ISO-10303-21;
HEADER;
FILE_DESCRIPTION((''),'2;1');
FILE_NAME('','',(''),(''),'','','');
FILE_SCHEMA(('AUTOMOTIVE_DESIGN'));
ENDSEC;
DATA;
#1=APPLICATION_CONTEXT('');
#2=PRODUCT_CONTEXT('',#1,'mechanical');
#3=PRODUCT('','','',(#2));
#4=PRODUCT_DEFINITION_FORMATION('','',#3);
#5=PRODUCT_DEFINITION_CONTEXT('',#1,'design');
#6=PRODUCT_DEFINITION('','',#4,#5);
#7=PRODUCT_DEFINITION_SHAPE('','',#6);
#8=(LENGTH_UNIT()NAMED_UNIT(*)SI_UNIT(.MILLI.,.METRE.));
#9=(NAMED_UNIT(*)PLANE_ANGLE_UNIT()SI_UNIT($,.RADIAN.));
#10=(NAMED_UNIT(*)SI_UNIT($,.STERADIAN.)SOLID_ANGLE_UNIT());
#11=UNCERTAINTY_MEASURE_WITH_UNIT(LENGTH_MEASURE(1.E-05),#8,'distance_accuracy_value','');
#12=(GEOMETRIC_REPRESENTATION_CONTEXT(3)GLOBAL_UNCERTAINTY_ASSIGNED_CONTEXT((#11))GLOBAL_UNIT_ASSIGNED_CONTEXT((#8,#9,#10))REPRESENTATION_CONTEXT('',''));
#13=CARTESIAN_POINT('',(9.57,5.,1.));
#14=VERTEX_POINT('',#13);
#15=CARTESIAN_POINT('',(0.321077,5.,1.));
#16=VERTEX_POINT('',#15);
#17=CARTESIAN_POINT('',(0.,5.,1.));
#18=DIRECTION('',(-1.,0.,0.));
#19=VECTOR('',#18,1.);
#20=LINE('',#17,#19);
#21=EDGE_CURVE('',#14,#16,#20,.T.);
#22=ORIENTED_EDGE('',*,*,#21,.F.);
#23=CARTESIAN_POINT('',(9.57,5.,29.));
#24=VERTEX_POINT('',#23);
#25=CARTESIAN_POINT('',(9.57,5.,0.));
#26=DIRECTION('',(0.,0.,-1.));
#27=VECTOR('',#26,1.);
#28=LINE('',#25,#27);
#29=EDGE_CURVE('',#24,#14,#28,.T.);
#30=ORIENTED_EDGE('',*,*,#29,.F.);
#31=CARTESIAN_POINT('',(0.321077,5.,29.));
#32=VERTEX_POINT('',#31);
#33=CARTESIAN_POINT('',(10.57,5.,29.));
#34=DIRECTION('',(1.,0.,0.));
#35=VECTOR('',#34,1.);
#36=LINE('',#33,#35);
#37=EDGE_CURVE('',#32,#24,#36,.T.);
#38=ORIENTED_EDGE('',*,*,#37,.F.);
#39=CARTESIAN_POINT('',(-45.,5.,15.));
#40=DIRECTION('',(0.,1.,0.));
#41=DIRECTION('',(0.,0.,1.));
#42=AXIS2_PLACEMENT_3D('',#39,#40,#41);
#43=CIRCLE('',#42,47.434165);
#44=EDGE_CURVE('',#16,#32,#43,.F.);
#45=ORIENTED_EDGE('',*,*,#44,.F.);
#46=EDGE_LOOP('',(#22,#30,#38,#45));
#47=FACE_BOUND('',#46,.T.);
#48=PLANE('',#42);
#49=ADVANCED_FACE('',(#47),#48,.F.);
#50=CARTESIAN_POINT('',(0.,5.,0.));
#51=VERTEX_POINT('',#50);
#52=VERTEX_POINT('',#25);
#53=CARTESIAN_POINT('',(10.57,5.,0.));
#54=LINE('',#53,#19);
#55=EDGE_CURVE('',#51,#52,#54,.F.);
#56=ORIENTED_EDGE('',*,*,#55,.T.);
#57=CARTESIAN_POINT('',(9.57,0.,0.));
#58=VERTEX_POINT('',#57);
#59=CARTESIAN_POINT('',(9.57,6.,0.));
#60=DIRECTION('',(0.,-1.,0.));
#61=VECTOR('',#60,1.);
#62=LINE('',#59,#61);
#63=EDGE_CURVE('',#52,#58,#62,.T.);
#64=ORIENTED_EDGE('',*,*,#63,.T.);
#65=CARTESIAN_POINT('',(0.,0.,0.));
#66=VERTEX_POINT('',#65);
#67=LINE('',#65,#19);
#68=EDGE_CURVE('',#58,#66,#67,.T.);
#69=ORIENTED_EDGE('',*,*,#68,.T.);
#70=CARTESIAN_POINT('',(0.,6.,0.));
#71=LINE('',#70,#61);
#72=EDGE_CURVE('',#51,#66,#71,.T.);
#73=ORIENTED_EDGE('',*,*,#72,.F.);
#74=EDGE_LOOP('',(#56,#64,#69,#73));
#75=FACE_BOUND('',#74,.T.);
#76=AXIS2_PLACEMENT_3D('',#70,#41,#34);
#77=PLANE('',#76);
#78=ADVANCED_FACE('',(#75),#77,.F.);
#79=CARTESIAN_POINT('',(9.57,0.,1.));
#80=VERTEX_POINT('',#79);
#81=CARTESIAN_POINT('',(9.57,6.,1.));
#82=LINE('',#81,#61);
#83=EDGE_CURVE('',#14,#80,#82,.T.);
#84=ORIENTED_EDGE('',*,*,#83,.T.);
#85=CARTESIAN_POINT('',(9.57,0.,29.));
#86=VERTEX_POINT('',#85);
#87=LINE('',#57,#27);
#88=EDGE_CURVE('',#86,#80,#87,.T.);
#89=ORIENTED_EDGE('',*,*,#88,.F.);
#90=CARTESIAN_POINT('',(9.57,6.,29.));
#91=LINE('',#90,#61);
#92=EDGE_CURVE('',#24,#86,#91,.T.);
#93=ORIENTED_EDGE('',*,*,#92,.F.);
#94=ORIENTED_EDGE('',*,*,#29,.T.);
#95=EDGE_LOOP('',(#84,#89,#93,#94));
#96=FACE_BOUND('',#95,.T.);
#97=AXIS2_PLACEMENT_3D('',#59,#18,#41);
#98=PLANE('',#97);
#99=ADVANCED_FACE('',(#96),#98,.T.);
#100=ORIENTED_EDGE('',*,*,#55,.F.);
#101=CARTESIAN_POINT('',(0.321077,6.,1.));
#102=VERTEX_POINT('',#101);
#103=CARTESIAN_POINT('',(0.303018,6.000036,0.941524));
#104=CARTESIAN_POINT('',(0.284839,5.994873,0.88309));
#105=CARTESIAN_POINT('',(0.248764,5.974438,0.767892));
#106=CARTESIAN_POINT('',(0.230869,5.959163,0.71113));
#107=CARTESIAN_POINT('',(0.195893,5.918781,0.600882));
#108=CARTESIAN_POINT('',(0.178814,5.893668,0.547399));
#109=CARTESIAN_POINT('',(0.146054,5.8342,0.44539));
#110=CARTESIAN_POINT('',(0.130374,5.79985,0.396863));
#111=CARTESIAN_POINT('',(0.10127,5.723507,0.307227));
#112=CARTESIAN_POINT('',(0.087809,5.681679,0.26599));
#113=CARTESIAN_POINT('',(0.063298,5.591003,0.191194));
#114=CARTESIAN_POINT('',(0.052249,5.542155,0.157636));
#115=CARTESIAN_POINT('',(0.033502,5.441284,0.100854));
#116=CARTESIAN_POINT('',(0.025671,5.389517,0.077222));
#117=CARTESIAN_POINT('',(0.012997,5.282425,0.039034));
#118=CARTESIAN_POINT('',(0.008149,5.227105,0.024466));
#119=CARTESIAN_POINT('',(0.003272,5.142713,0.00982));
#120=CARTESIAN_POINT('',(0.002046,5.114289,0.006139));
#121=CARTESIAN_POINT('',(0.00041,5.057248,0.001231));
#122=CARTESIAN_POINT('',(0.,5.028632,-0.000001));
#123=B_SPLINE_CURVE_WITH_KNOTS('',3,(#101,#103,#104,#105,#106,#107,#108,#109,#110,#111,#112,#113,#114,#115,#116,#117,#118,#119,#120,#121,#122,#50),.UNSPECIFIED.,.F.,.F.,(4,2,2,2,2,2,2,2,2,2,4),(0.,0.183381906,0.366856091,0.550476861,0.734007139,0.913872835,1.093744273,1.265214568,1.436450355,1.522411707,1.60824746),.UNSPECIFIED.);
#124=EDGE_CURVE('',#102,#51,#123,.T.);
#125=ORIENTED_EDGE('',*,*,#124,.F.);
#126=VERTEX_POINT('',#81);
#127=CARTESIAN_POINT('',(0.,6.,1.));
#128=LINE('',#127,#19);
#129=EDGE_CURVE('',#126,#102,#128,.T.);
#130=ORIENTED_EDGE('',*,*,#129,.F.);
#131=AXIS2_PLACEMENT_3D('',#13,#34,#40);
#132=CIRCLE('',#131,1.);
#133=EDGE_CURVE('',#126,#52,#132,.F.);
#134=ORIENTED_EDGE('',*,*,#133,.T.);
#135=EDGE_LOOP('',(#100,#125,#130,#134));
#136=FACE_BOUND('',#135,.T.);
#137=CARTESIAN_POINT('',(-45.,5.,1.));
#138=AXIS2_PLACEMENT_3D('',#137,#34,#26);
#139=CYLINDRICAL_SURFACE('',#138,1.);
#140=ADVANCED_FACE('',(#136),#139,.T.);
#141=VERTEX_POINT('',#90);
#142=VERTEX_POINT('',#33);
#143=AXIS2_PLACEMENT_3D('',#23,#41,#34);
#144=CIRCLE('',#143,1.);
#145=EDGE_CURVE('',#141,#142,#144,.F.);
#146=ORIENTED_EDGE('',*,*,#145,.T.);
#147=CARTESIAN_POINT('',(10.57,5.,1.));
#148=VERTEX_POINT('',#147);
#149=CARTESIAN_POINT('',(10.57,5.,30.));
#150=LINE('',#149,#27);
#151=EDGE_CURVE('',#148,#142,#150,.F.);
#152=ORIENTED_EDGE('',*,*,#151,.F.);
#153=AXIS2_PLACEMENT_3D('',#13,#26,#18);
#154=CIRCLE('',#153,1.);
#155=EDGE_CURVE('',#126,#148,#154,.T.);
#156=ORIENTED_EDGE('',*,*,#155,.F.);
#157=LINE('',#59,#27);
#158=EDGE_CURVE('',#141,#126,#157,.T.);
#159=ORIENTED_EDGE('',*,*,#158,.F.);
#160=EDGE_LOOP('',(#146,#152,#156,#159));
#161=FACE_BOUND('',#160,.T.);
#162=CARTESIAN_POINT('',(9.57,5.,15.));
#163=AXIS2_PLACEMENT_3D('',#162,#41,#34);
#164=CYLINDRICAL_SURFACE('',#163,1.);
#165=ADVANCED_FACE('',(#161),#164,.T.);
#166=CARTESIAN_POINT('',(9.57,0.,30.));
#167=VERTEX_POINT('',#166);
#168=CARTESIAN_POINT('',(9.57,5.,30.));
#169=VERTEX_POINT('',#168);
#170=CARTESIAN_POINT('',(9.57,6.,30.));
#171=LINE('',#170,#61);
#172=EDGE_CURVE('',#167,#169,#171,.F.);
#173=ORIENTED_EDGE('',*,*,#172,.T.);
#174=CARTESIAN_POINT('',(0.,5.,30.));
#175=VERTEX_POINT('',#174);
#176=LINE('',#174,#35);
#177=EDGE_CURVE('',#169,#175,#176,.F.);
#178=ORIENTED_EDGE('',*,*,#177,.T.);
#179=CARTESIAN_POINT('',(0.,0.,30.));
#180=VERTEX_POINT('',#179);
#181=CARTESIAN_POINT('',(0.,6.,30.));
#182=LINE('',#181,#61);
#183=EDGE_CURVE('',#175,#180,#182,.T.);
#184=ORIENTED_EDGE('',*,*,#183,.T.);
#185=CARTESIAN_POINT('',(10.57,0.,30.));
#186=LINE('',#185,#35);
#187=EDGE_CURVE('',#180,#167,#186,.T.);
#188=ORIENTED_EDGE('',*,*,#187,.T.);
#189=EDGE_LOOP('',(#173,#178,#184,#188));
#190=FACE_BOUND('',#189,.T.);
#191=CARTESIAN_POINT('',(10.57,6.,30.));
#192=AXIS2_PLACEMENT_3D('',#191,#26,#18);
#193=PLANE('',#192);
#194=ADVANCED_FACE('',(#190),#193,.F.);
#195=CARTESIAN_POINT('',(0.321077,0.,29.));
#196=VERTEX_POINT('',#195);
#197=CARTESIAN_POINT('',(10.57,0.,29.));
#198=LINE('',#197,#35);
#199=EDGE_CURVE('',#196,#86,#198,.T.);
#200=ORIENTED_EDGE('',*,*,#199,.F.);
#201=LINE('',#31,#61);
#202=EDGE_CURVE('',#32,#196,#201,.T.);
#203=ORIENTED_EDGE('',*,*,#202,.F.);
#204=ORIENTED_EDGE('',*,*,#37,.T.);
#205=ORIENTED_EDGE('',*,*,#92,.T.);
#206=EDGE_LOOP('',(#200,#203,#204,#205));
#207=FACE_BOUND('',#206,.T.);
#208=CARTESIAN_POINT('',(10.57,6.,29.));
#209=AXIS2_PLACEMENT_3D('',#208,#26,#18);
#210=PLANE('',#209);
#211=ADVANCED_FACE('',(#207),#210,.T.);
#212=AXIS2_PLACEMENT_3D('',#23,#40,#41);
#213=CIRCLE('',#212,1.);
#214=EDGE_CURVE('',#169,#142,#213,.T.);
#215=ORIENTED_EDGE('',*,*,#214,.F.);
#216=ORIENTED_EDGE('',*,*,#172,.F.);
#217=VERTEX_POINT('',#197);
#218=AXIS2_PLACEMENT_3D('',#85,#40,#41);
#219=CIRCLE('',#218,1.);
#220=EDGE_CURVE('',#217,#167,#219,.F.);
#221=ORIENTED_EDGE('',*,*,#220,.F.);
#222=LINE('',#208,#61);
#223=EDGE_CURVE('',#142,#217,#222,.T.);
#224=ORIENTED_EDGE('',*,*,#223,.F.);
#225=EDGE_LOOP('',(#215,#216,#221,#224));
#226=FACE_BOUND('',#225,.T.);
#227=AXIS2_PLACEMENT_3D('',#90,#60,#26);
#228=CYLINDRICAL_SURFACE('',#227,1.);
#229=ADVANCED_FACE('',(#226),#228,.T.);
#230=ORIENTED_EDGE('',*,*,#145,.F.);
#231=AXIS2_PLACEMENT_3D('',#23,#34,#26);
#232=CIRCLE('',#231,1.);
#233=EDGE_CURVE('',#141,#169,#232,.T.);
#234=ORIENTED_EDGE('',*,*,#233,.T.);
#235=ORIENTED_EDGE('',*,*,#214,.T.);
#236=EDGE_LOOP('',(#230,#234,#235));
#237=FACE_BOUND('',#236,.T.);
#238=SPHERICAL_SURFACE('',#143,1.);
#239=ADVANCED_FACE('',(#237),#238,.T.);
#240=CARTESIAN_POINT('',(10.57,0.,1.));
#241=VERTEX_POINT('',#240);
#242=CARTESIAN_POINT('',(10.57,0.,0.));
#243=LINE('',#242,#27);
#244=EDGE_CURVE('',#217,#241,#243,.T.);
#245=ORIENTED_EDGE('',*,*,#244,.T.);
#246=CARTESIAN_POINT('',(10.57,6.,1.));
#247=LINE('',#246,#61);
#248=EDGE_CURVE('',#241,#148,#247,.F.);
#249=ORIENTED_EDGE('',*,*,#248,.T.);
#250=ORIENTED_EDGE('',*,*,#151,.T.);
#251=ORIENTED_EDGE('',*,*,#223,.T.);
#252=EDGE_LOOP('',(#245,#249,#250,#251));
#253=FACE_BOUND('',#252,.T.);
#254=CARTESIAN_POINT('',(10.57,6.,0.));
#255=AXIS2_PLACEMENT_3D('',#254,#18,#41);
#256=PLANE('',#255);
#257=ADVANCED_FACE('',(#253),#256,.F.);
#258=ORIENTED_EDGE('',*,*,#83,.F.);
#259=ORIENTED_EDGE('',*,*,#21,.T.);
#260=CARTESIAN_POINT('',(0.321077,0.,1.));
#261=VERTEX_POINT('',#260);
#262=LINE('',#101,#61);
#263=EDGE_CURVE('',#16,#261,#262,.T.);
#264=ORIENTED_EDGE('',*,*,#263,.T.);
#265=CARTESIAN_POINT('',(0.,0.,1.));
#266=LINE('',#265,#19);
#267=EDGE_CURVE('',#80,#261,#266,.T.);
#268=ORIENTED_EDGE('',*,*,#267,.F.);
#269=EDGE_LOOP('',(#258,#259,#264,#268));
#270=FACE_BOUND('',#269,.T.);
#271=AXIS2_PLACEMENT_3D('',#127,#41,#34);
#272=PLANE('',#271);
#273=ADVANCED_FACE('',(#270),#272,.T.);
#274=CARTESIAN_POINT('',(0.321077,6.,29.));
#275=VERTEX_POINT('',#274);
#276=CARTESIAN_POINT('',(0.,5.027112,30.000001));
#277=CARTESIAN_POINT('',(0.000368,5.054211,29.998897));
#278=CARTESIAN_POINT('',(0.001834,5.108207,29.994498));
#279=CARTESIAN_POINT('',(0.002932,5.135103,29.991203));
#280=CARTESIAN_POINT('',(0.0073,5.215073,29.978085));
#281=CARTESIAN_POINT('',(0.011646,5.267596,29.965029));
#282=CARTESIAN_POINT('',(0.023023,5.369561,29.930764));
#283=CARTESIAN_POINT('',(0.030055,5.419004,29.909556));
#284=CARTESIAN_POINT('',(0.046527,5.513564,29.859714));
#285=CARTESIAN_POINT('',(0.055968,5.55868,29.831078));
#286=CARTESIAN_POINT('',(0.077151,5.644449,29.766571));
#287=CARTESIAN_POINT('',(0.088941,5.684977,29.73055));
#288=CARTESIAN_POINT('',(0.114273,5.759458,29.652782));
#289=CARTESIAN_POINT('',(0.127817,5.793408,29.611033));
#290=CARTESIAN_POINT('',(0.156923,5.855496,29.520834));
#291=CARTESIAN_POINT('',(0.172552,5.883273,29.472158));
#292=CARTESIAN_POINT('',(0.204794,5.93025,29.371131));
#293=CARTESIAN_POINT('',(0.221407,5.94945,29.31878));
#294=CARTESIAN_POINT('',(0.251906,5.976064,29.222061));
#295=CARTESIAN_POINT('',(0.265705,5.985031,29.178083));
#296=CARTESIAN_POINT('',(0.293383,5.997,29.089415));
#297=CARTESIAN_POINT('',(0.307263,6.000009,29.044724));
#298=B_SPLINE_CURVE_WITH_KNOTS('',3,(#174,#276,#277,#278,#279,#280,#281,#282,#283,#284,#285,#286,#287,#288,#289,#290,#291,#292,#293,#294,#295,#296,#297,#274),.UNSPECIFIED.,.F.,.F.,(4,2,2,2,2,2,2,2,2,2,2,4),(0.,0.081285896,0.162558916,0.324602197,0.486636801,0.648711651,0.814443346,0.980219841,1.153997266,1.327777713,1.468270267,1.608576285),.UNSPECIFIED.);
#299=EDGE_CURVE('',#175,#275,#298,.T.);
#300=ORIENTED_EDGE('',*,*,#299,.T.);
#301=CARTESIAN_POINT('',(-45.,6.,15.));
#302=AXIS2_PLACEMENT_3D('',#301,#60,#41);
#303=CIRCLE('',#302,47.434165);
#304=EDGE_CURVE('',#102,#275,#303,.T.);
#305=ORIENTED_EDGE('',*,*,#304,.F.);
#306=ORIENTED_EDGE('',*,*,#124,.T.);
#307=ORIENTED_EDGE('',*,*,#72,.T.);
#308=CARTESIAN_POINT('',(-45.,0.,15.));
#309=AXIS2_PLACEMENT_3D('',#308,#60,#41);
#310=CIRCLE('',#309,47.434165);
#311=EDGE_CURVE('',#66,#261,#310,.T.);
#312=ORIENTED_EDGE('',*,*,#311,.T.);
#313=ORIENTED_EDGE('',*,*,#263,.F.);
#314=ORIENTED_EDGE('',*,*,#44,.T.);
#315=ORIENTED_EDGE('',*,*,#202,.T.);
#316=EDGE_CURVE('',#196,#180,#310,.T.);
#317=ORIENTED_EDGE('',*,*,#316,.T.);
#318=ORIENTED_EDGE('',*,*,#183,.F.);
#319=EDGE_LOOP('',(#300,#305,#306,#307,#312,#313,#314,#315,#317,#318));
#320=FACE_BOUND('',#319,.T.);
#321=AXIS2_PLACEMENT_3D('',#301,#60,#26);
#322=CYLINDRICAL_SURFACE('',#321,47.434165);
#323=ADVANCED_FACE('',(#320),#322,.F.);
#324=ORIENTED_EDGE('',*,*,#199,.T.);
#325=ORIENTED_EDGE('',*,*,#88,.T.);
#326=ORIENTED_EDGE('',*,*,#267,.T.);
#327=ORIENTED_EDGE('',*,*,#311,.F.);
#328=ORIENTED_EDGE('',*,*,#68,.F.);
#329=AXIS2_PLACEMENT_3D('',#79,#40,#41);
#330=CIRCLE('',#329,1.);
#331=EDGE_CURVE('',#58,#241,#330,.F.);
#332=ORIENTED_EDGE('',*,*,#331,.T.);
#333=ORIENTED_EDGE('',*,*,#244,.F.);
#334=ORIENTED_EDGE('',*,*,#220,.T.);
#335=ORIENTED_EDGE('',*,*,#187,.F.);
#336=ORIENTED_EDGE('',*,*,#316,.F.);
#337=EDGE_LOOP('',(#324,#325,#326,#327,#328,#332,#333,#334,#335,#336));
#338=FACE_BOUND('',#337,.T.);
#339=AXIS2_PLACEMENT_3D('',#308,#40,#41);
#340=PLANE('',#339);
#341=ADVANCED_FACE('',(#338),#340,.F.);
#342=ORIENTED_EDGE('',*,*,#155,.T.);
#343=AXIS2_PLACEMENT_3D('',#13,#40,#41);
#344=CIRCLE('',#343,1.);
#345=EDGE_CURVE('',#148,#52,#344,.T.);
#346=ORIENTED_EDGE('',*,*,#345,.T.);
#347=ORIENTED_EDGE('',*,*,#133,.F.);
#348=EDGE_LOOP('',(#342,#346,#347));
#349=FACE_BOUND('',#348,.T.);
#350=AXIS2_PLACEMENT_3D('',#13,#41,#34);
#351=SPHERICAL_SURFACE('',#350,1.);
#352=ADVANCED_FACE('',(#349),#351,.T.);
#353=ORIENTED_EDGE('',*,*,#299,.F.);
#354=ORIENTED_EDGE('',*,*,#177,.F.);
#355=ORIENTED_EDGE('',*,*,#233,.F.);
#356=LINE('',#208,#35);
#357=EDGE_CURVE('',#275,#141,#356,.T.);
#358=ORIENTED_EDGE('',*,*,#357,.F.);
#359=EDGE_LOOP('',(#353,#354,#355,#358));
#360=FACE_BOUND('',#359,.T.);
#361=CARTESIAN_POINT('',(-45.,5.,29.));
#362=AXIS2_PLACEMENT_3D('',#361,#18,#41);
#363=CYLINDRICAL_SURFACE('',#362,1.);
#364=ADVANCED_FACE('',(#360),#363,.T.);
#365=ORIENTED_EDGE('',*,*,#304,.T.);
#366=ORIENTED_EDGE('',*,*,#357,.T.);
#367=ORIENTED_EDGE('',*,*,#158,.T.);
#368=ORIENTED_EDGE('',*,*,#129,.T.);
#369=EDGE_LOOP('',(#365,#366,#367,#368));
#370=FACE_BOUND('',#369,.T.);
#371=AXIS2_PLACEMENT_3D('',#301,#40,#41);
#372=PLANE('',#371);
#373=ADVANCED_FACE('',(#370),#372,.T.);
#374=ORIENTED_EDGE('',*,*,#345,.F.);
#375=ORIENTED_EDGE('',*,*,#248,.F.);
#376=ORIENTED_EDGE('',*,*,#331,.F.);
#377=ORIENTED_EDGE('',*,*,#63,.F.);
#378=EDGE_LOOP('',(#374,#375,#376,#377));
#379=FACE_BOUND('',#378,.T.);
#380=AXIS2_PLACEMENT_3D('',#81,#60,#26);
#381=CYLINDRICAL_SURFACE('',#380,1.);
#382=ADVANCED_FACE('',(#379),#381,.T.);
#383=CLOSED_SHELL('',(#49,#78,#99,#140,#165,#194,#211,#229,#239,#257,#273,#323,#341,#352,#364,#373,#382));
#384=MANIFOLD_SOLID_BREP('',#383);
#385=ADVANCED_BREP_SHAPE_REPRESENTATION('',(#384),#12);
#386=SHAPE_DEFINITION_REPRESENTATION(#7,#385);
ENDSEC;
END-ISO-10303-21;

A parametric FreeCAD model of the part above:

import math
import FreeCAD as App
import Part
import Sketcher

V = App.Vector


def edges_at(feature, points):
    """Names of the edges that pass closest to the given points."""
    edges = feature.Shape.Edges
    near = lambda p: min(range(len(edges)), key=lambda i: edges[i].distToShape(Part.Vertex(*p))[0])
    return sorted({f"Edge{near(p) + 1}" for p in points})


def faces_at(feature, points):
    """Names of the faces that lie closest to the given points."""
    faces = feature.Shape.Faces
    near = lambda p: min(range(len(faces)), key=lambda i: faces[i].distToShape(Part.Vertex(*p))[0])
    return sorted({f"Face{near(p) + 1}" for p in points})

doc = App.newDocument("Part")
body = doc.addObject("PartDesign::Body", "Body")

sketch1 = body.newObject("Sketcher::SketchObject", "Sketch")
sketch1.AttachmentSupport = (doc.getObject("XZ_Plane"), [""])
sketch1.MapMode = "FlatFace"
sketch1.addGeometry([
    Part.LineSegment(V(11, 0, 0), V(0, 0, 0)),
    Part.ArcOfCircle(Part.Circle(V(-45, 15, 0), V(0, 0, 1), 47), math.radians(-18), math.radians(18)),
    Part.LineSegment(V(0, 30, 0), V(11, 30, 0)),
    Part.LineSegment(V(11, 30, 0), V(11, 0, 0)),
], False)
sketch1.addConstraint([
    Sketcher.Constraint("Coincident", 0, 2, 1, 1),
    Sketcher.Constraint("Coincident", 1, 2, 2, 1),
    Sketcher.Constraint("Coincident", 2, 2, 3, 1),
    Sketcher.Constraint("Coincident", 3, 2, 0, 1),
    Sketcher.Constraint("Horizontal", 0),
    Sketcher.Constraint("Horizontal", 2),
    Sketcher.Constraint("Vertical", 3),
    Sketcher.Constraint("Coincident", 0, 2, -1, 1),
    Sketcher.Constraint("PointOnObject", 1, 2, -2),
    Sketcher.Constraint("DistanceY", 3, 2, 3, 1, 30.0),
    Sketcher.Constraint("DistanceX", 1, 3, -1, 1, 45.0),
    Sketcher.Constraint("DistanceX", 0, 2, 0, 1, 10.57),
])
pad1 = body.newObject("PartDesign::Pad", "Pad")
pad1.Profile = sketch1
pad1.Length = 6
pad1.Reversed = True
doc.recompute()

thickness = body.newObject("PartDesign::Thickness", "Thickness")
thickness.Base = (pad1, faces_at(pad1, [(5.285, 0, 15), (2.434, 3, 15)]))
thickness.Value = 1
thickness.Reversed = True
thickness.Join = "Intersection"
doc.recompute()

fillet = body.newObject("PartDesign::Fillet", "Fillet")
fillet.Base = (thickness, edges_at(thickness, [
    (10.57, 6, 15),
    (5.285, 6, 0),
    (10.57, 3, 0),
    (10.57, 3, 30),
    (5.285, 6, 30),
]))
fillet.Radius = 1

doc.recompute()
